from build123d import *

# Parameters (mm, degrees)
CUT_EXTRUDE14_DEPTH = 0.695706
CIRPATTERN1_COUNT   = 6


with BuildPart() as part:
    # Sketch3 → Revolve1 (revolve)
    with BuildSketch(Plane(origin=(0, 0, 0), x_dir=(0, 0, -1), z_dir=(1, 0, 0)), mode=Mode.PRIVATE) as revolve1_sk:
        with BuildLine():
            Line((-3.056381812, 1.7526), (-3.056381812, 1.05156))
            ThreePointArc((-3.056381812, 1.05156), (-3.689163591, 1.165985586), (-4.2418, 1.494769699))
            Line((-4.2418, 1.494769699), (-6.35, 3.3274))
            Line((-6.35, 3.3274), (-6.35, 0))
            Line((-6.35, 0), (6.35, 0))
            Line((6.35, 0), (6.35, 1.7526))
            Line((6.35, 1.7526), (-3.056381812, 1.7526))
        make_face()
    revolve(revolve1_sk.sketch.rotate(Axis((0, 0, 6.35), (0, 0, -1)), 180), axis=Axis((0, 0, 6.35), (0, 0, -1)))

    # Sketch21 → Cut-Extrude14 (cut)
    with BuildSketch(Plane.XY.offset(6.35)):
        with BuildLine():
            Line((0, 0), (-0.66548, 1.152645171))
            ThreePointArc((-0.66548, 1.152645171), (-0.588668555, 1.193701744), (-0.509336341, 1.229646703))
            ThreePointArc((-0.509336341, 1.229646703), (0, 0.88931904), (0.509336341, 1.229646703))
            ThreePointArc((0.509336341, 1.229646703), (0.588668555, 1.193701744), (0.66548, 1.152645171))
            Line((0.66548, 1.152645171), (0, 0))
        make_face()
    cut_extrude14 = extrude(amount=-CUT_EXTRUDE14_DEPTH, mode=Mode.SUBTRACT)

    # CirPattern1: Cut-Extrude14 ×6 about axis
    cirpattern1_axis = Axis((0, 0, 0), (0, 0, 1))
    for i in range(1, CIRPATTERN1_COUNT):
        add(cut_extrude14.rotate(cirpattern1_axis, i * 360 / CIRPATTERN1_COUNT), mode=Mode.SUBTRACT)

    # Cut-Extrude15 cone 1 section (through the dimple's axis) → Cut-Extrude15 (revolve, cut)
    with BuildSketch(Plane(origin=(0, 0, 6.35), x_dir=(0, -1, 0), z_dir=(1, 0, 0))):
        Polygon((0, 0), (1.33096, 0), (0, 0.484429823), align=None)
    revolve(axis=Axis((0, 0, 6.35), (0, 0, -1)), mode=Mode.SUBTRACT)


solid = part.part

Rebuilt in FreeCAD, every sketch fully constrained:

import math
import FreeCAD as App
import Part
import Sketcher
from FreeCAD import Vector
Q = App.Units.Quantity


def add_polygon(sketch, points):
    """Adds a closed chain of lines whose ends are joined by coincident constraints."""
    first, n = sketch.GeometryCount, len(points)
    for a, b in zip(points, points[1:] + points[:1]):
        sketch.addGeometry(Part.LineSegment(App.Vector(*a, 0), App.Vector(*b, 0)), False)
    for i in range(n):
        sketch.addConstraint(Sketcher.Constraint("Coincident", first + i, 2, first + (i + 1) % n, 1))

doc = App.newDocument("Part")
body = doc.addObject("PartDesign::Body", "Body")

# Sketch on YZ plane
sketch1 = doc.addObject("Sketcher::SketchObject", "Sketch")
body.addObject(sketch1)
sketch1.AttachmentSupport = (doc.YZ_Plane, [""])
sketch1.MapMode = "FlatFace"
sketch1.addGeometry([
    Part.LineSegment(Vector(1.8, 3.1, 0), Vector(1.1, 3.1, 0)),  # 0
    Part.ArcOfCircle(Part.Circle(Vector(2.9, 3.1, 0), Vector(0, 0, 1), 1.8), math.radians(139), math.radians(180)),  # 1
    Part.LineSegment(Vector(1.5, 4.2, 0), Vector(3.3, 6.3, 0)),  # 2
    Part.LineSegment(Vector(3.3, 6.3, 0), Vector(0, 6.3, 0)),  # 3
    Part.LineSegment(Vector(0, 6.3, 0), Vector(0, -6.3, 0)),  # 4
    Part.LineSegment(Vector(0, -6.3, 0), Vector(1.8, -6.3, 0)),  # 5
    Part.LineSegment(Vector(1.8, -6.3, 0), Vector(1.8, 3.1, 0)),  # 6
], False)
sketch1.addConstraint([
    Sketcher.Constraint("Coincident", 0, 2, 1, 2),
    Sketcher.Constraint("Tangent", 1, 1, 2, 1),
    Sketcher.Constraint("Coincident", 2, 2, 3, 1),
    Sketcher.Constraint("Coincident", 3, 2, 4, 1),
    Sketcher.Constraint("Coincident", 4, 2, 5, 1),
    Sketcher.Constraint("Coincident", 5, 2, 6, 1),
    Sketcher.Constraint("Coincident", 6, 2, 0, 1),
    Sketcher.Constraint("Horizontal", 0),
    Sketcher.Constraint("Horizontal", 3),
    Sketcher.Constraint("Vertical", 4),
    Sketcher.Constraint("Horizontal", 5),
    Sketcher.Constraint("Vertical", 6),
    Sketcher.Constraint("Symmetric", 3, 2, 4, 2, -1, 1),
    Sketcher.Constraint("Horizontal", 1, 3, 0, 2),
    Sketcher.Constraint("DistanceY", 4, 2, 4, 1, Q("0.5 in")),
    Sketcher.Constraint("Angle", 2, Q("49 deg")),
    Sketcher.Constraint("DistanceX", 3, 2, 3, 1, Q("0.131 in")),
    Sketcher.Constraint("DistanceX", 5, 1, 5, 2, Q("0.069 in")),
    Sketcher.Constraint("DistanceX", 0, 2, 0, 1, Q("0.0276 in")),
    Sketcher.Constraint("DistanceY", -1, 1, 1, 1, Q("0.167 in")),
])
revolution = doc.addObject("PartDesign::Revolution", "Revolution")
body.addObject(revolution)
revolution.Profile = sketch1
revolution.ReferenceAxis = (sketch1, ["V_Axis"])
revolution.Angle = 360

# Sketch on XY plane
sketch2 = doc.addObject("Sketcher::SketchObject", "Sketch001")
body.addObject(sketch2)
sketch2.AttachmentSupport = (doc.XY_Plane, [""])
sketch2.MapMode = "FlatFace"
sketch2.AttachmentOffset = App.Placement(Vector(0, 0, 0.25 * 25.4), App.Rotation())
sketch2.addGeometry([
    Part.LineSegment(Vector(-0.67, 1.15, 0), Vector(0, 0, 0)),  # 0
    Part.LineSegment(Vector(0, 0, 0), Vector(0.67, 1.15, 0)),  # 1
    Part.ArcOfCircle(Part.Circle(Vector(0, 0, 0), Vector(0, 0, 1), 1.33), math.radians(60), math.radians(67.5)),  # 2
    Part.ArcOfCircle(Part.Circle(Vector(0, 1.44, 0), Vector(0, 0, 1), 0.55), math.radians(-158), math.radians(-22)),  # 3
    Part.ArcOfCircle(Part.Circle(Vector(0, 0, 0), Vector(0, 0, 1), 1.33), math.radians(112.5), math.radians(120)),  # 4
], False)
sketch2.addConstraint([
    Sketcher.Constraint("Coincident", 0, 2, 1, 1),
    Sketcher.Constraint("Coincident", 1, 2, 2, 1),
    Sketcher.Constraint("Coincident", 2, 2, 3, 2),
    Sketcher.Constraint("Coincident", 3, 1, 4, 1),
    Sketcher.Constraint("Coincident", 4, 2, 0, 1),
    Sketcher.Constraint("Coincident", 2, 3, -1, 1),
    Sketcher.Constraint("Coincident", 4, 3, -1, 1),
    Sketcher.Constraint("Coincident", 0, 2, -1, 1),
    Sketcher.Constraint("Equal", 2, 4),
    Sketcher.Constraint("PointOnObject", 3, 3, -2),
    Sketcher.Constraint("Horizontal", 1, 2, 4, 2),
    Sketcher.Constraint("Angle", 0, Q("-60 deg")),
    Sketcher.Constraint("Radius", 2, Q("0.0524 in")),
    Sketcher.Constraint("Radius", 3, Q("0.551302 mm")),
    Sketcher.Constraint("DistanceY", 1, 2, 2, 2, Q("0.077002 mm")),
])
pocket1 = doc.addObject("PartDesign::Pocket", "Pocket")
body.addObject(pocket1)
pocket1.Profile = sketch2
pocket1.Length = 0.695706
doc.recompute()

polarpattern = doc.addObject("PartDesign::PolarPattern", "PolarPattern")
body.addObject(polarpattern)
polarpattern.Originals = [pocket1]
polarpattern.Axis = (doc.Z_Axis, [""])
polarpattern.Angle = 360
polarpattern.Occurrences = 6
body.Tip = polarpattern

# Sketch on YZ plane
sketch3 = doc.addObject("Sketcher::SketchObject", "Sketch002")
body.addObject(sketch3)
sketch3.AttachmentSupport = (doc.YZ_Plane, [""])
sketch3.MapMode = "FlatFace"
add_polygon(sketch3, [(0, 6.35), (-1.33, 6.35), (0, 5.87)])  # lines 0-2
sketch3.addConstraint([
    Sketcher.Constraint("Horizontal", 0),
    Sketcher.Constraint("Vertical", 2),
    Sketcher.Constraint("PointOnObject", 1, 2, -2),
    Sketcher.Constraint("Angle", 1, Q("-20 deg")),
    Sketcher.Constraint("DistanceY", -1, 1, 0, 2, Q("0.25 in")),
    Sketcher.Constraint("DistanceX", 0, 2, 0, 1, Q("0.0524 in")),
])
groove = doc.addObject("PartDesign::Groove", "Groove")
body.addObject(groove)
groove.Profile = sketch3
groove.ReferenceAxis = (sketch3, ["V_Axis"])
groove.Angle = 360

doc.recompute()
